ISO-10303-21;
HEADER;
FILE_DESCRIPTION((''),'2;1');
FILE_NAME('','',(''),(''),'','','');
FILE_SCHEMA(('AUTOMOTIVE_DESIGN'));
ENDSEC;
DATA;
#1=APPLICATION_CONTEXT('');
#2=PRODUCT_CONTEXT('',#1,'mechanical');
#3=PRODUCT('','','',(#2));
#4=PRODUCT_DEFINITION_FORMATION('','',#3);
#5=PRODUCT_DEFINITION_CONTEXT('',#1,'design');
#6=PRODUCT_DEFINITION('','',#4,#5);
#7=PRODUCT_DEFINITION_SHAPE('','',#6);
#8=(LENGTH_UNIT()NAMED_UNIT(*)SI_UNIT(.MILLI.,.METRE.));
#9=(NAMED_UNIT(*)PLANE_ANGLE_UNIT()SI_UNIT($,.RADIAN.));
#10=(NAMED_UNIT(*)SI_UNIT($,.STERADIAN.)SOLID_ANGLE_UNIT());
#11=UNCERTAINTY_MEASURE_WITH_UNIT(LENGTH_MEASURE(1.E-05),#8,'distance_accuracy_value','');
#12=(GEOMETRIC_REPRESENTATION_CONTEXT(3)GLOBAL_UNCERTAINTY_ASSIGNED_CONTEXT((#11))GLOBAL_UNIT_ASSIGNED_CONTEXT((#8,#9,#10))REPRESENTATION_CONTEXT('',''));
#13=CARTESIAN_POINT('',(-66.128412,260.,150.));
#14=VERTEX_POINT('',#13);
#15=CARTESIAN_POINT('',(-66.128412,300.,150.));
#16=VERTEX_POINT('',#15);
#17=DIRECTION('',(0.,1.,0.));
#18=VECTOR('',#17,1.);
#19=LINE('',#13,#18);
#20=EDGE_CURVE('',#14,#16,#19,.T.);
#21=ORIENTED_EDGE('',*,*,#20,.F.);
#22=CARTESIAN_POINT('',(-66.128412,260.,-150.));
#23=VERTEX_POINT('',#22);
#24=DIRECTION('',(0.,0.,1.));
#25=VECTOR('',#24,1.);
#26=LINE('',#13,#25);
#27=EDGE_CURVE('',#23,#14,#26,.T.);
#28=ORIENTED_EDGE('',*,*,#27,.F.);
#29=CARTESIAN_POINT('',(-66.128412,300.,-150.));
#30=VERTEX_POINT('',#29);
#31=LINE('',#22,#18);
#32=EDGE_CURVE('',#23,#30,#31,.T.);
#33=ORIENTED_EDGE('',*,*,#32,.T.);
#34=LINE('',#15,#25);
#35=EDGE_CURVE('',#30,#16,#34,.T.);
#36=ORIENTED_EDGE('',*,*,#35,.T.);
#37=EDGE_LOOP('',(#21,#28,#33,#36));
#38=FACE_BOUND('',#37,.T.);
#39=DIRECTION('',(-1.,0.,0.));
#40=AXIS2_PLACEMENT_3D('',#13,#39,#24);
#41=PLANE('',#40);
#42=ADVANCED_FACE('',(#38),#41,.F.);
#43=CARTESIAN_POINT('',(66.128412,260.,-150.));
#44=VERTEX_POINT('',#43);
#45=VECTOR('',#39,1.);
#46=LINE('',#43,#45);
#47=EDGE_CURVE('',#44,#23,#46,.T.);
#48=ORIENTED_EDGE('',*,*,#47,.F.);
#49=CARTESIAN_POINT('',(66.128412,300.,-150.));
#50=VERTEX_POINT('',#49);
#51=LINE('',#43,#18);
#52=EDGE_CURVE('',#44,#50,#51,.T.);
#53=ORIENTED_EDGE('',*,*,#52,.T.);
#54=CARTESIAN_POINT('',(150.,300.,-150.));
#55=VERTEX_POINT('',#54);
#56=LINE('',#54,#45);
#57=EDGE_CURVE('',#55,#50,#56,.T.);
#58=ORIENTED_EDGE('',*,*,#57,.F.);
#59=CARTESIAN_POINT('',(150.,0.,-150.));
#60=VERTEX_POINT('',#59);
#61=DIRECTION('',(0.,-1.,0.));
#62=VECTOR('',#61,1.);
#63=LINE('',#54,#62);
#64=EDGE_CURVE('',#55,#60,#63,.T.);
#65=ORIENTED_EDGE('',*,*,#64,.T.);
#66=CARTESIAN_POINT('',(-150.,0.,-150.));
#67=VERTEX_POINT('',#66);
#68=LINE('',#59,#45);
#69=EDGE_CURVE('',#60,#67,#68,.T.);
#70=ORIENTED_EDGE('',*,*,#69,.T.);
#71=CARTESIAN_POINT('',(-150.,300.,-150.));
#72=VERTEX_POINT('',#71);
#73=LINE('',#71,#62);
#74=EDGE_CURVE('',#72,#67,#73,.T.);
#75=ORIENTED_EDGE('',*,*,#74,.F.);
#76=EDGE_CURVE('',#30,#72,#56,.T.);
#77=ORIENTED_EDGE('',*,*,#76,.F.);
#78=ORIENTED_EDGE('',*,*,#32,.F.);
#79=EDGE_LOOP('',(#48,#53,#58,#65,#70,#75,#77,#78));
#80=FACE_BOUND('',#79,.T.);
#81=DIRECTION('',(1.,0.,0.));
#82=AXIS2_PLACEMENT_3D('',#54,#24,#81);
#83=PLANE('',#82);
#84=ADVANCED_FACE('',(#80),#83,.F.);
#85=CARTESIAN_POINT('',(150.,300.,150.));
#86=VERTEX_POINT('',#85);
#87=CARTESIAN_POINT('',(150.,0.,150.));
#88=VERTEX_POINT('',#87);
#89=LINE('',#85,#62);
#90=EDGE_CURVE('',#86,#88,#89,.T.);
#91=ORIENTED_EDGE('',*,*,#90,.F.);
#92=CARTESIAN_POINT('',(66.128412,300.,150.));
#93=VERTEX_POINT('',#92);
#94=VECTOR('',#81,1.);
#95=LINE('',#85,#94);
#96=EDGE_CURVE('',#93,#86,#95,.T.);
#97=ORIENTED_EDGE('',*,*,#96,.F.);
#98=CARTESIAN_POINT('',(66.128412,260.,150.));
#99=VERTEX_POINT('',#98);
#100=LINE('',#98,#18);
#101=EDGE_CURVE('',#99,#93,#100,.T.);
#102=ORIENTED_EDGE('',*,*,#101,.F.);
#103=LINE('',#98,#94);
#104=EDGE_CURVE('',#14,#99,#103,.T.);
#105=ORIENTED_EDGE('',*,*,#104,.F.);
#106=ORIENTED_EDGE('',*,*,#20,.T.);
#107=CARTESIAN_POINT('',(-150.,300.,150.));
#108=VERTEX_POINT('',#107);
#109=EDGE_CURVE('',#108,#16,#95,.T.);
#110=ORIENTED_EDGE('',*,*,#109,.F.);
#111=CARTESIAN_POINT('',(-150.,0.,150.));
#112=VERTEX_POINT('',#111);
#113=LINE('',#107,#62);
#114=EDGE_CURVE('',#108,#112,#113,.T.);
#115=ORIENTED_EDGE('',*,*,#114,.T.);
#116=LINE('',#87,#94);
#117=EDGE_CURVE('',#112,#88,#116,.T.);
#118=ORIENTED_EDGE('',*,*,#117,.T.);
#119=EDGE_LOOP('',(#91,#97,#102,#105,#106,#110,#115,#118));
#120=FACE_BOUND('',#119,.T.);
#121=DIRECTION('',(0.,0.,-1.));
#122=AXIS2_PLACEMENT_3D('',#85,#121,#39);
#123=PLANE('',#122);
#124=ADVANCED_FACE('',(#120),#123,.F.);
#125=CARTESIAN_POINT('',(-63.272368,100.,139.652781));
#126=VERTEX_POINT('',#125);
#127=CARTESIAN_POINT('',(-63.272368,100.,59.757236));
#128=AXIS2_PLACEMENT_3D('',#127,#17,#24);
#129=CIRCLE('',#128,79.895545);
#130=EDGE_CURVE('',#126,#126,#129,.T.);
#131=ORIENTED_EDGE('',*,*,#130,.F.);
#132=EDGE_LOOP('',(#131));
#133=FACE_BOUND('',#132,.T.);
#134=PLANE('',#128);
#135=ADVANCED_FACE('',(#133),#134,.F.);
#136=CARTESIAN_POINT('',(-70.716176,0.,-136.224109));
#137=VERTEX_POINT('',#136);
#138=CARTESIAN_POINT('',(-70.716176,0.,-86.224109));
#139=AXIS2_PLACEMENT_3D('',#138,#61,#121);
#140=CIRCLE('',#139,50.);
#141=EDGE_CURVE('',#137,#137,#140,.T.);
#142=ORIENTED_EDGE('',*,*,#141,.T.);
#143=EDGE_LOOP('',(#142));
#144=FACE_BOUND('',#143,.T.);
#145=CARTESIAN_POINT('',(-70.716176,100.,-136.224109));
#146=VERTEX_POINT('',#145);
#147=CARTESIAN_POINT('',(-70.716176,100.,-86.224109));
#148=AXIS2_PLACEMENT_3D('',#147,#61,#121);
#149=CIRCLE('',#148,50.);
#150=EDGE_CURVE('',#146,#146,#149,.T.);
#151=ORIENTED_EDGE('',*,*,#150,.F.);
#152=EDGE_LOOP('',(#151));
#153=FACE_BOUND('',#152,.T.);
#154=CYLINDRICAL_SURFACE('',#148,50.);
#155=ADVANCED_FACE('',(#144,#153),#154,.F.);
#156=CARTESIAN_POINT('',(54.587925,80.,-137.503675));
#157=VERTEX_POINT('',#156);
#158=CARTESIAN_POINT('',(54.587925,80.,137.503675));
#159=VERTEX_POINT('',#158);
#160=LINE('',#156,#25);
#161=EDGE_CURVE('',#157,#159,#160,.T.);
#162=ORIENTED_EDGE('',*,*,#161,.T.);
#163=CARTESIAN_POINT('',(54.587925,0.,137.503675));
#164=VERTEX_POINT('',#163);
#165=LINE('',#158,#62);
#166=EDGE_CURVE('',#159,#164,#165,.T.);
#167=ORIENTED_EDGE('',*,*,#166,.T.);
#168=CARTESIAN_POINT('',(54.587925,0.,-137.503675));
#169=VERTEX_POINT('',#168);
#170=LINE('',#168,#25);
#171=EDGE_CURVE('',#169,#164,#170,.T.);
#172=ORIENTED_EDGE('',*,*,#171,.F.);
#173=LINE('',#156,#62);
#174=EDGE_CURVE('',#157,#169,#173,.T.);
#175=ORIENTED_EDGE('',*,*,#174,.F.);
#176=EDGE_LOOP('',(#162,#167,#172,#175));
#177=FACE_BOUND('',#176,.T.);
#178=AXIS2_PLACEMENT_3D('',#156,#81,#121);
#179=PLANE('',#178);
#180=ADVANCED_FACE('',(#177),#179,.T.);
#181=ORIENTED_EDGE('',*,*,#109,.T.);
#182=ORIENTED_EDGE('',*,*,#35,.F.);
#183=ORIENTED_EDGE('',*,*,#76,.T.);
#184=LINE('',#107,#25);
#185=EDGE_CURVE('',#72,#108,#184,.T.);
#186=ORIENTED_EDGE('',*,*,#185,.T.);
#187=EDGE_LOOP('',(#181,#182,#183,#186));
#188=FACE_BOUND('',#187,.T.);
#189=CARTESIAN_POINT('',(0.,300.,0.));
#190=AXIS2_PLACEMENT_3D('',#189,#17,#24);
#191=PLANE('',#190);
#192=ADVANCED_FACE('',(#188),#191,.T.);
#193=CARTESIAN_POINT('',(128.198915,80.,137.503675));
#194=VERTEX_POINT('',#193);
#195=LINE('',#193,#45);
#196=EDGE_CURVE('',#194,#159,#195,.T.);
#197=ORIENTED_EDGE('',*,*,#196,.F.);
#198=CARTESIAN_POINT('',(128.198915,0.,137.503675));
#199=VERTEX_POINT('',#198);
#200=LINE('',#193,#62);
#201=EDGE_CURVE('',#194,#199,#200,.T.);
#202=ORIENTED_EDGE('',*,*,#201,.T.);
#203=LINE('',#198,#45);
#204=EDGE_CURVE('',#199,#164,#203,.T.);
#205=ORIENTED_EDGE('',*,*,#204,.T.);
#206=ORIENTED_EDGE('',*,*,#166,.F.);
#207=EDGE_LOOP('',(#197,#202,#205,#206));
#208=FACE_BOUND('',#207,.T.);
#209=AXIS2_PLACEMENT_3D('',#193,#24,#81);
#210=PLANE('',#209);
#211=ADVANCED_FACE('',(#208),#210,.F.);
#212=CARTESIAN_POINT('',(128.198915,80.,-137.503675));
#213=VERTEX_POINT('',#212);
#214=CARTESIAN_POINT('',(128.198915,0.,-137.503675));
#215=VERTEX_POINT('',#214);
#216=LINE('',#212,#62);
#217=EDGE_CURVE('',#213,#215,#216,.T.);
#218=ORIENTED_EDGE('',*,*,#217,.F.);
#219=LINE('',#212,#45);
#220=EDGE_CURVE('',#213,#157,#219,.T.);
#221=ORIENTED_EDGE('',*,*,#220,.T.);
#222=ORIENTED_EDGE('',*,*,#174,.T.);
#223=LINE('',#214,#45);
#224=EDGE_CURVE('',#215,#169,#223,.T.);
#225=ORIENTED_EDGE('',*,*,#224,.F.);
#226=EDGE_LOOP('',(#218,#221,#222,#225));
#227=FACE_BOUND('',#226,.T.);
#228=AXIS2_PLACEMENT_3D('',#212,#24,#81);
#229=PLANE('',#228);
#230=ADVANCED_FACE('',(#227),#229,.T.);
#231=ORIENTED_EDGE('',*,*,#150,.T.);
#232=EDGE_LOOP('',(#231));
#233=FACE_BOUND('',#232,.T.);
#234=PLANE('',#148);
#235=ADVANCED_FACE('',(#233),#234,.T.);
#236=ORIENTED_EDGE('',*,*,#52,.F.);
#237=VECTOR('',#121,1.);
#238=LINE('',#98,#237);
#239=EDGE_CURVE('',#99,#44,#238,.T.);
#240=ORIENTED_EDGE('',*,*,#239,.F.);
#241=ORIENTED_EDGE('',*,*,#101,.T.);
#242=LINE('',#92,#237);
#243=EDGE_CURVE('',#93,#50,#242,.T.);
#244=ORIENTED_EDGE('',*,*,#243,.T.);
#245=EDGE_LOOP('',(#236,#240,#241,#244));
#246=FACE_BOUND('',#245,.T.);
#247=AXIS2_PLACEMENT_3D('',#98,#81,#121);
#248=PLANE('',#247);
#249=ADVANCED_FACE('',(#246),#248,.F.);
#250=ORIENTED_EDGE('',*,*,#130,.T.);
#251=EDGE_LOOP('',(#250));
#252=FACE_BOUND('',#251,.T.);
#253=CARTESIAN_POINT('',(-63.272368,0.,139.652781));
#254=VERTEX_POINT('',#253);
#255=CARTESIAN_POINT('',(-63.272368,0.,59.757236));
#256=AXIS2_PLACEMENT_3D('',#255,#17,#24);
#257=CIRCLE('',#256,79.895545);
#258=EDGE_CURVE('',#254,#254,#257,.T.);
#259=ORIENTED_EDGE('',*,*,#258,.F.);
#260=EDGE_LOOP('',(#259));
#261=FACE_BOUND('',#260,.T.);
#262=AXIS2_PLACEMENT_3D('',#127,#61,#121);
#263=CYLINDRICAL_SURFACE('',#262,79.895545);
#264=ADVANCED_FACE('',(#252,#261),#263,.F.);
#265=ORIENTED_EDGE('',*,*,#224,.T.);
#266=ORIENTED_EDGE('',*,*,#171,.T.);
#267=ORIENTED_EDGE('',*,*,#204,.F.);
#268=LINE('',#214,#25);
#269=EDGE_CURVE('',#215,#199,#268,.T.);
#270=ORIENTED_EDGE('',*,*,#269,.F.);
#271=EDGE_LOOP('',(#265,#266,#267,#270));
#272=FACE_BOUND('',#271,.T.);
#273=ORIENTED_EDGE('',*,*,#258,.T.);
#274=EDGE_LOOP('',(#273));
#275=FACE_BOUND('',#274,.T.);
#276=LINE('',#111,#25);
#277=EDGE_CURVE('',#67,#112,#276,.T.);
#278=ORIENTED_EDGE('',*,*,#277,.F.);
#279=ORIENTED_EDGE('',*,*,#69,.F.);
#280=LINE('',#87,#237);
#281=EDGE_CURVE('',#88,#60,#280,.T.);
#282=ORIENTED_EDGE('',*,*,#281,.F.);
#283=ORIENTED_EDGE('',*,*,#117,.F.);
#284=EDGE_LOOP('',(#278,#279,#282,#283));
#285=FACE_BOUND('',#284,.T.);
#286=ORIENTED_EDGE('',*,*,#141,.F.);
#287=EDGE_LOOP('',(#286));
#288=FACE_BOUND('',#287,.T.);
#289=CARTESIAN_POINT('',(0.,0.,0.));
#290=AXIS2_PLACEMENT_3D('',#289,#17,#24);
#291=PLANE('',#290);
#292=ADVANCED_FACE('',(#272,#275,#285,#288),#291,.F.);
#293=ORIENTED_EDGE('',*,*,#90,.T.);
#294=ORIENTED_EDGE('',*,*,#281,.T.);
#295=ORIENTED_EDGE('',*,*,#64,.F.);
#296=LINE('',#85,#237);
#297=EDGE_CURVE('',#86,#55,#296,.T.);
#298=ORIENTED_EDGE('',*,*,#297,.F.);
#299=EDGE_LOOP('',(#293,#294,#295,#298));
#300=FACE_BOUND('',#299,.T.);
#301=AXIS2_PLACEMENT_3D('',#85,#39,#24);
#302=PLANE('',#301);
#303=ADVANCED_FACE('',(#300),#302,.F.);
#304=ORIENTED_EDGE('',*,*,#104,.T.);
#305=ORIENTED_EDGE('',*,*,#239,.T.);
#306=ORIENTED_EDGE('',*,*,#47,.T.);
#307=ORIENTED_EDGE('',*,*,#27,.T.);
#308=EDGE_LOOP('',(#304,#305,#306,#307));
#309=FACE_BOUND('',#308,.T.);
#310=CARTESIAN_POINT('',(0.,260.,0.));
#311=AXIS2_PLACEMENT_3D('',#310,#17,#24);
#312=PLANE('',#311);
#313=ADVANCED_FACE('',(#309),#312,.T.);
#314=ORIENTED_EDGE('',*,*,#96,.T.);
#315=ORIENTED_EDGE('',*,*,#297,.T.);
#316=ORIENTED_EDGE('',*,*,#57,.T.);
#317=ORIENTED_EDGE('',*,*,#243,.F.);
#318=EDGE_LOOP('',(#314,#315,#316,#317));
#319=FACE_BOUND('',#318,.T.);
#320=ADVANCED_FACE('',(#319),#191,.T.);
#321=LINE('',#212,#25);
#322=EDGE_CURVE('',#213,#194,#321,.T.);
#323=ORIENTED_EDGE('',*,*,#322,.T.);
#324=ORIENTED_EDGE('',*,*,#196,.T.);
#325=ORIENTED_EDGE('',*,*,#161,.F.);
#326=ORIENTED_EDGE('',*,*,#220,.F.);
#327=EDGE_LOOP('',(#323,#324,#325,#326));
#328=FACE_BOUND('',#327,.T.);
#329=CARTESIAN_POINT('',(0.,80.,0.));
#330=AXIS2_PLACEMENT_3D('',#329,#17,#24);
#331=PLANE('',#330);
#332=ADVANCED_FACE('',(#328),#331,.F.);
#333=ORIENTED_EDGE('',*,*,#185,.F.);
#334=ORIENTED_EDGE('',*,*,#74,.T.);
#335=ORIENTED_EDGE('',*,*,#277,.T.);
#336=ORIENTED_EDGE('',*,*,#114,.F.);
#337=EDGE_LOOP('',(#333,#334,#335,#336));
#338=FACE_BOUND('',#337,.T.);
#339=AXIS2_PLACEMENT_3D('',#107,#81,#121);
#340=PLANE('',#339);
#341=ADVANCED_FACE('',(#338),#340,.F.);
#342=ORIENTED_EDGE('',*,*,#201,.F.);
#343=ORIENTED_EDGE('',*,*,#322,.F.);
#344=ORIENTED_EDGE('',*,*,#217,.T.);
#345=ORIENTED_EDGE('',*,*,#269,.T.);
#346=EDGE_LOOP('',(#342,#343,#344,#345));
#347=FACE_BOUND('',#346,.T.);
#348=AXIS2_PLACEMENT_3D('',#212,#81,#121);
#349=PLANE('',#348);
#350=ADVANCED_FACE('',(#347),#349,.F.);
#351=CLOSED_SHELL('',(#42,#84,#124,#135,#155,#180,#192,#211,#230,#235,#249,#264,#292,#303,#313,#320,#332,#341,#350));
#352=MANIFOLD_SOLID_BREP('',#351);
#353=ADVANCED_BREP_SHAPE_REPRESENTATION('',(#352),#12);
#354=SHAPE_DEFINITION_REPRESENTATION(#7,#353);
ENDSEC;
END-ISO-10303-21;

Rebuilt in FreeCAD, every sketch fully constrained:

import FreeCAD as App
import Part
import Sketcher

V = App.Vector
Q = App.Units.Quantity

doc = App.newDocument("Part")
body = doc.addObject("PartDesign::Body", "Body")

sketch1 = body.newObject("Sketcher::SketchObject", "Sketch")
sketch1.AttachmentSupport = (doc.getObject("XZ_Plane"), [""])
sketch1.MapMode = "FlatFace"
sketch1.addGeometry(Part.LineSegment(V(-150, -150, 0), V(-150, 150, 0)), False)
sketch1.addGeometry(Part.LineSegment(V(-150, 150, 0), V(150, 150, 0)), False)
sketch1.addGeometry(Part.LineSegment(V(150, 150, 0), V(150, -150, 0)), False)
sketch1.addGeometry(Part.LineSegment(V(150, -150, 0), V(-150, -150, 0)), False)
sketch1.addConstraint(Sketcher.Constraint("Coincident", 0, 2, 1, 1))
sketch1.addConstraint(Sketcher.Constraint("Coincident", 1, 2, 2, 1))
sketch1.addConstraint(Sketcher.Constraint("Coincident", 2, 2, 3, 1))
sketch1.addConstraint(Sketcher.Constraint("Coincident", 3, 2, 0, 1))
sketch1.addConstraint(Sketcher.Constraint("Vertical", 0))
sketch1.addConstraint(Sketcher.Constraint("Horizontal", 1))
sketch1.addConstraint(Sketcher.Constraint("Vertical", 2))
sketch1.addConstraint(Sketcher.Constraint("Horizontal", 3))
sketch1.addConstraint(Sketcher.Constraint("Symmetric", 0, 2, 2, 2, -1, 1))
sketch1.addConstraint(Sketcher.Constraint("Equal", 3, 0))
sketch1.addConstraint(Sketcher.Constraint("DistanceX", 1, 1, 1, 2, Q("300 mm")))
pad1 = body.newObject("PartDesign::Pad", "Pad")
pad1.Profile = sketch1
pad1.Length = 300
pad1.Reversed = True

sketch2 = body.newObject("Sketcher::SketchObject", "Sketch001")
sketch2.AttachmentSupport = (doc.getObject("XZ_Plane"), [""])
sketch2.MapMode = "FlatFace"
sketch2.addGeometry(Part.Circle(V(-63.272368, 59.757236, 0), V(0, 0, 1), 79.895545), False)
sketch2.addConstraint(Sketcher.Constraint("Diameter", 0, Q("159.79109 mm")))
sketch2.addConstraint(Sketcher.Constraint("DistanceX", 0, 3, -1, 1, Q("63.272368 mm")))
sketch2.addConstraint(Sketcher.Constraint("DistanceY", -1, 1, 0, 3, Q("59.757236 mm")))
pocket1 = body.newObject("PartDesign::Pocket", "Pocket")
pocket1.Profile = sketch2
pocket1.Length = 100

sketch3 = body.newObject("Sketcher::SketchObject", "Sketch002")
sketch3.AttachmentSupport = (doc.getObject("XZ_Plane"), [""])
sketch3.MapMode = "FlatFace"
sketch3.addGeometry(Part.Circle(V(-70.716176, -86.224109, 0), V(0, 0, 1), 50), False)
sketch3.addConstraint(Sketcher.Constraint("Diameter", 0, Q("100 mm")))
sketch3.addConstraint(Sketcher.Constraint("DistanceY", 0, 3, -1, 1, Q("86.224109 mm")))
sketch3.addConstraint(Sketcher.Constraint("DistanceX", 0, 3, -1, 1, Q("70.716176 mm")))
pocket2 = body.newObject("PartDesign::Pocket", "Pocket001")
pocket2.Profile = sketch3
pocket2.Length = 100

sketch4 = body.newObject("Sketcher::SketchObject", "Sketch003")
sketch4.AttachmentSupport = (doc.getObject("XZ_Plane"), [""])
sketch4.MapMode = "FlatFace"
sketch4.addGeometry(Part.LineSegment(V(54.587925, 137.503675, 0), V(54.587925, -137.503675, 0)), False)
sketch4.addGeometry(Part.LineSegment(V(54.587925, -137.503675, 0), V(128.198915, -137.503675, 0)), False)
sketch4.addGeometry(Part.LineSegment(V(128.198915, -137.503675, 0), V(128.198915, 137.503675, 0)), False)
sketch4.addGeometry(Part.LineSegment(V(128.198915, 137.503675, 0), V(54.587925, 137.503675, 0)), False)
sketch4.addConstraint(Sketcher.Constraint("Coincident", 0, 2, 1, 1))
sketch4.addConstraint(Sketcher.Constraint("Coincident", 1, 2, 2, 1))
sketch4.addConstraint(Sketcher.Constraint("Coincident", 2, 2, 3, 1))
sketch4.addConstraint(Sketcher.Constraint("Coincident", 3, 2, 0, 1))
sketch4.addConstraint(Sketcher.Constraint("Vertical", 0))
sketch4.addConstraint(Sketcher.Constraint("Horizontal", 1))
sketch4.addConstraint(Sketcher.Constraint("Vertical", 2))
sketch4.addConstraint(Sketcher.Constraint("Horizontal", 3))
sketch4.addConstraint(Sketcher.Constraint("DistanceX", 1, 1, 1, 2, Q("73.61099 mm")))
sketch4.addConstraint(Sketcher.Constraint("DistanceY", 0, 2, 0, 1, Q("275.00735 mm")))
sketch4.addConstraint(Sketcher.Constraint("DistanceX", -1, 1, 0, 2, Q("54.587925 mm")))
sketch4.addConstraint(Sketcher.Constraint("DistanceY", 0, 2, -1, 1, Q("137.503675 mm")))
pocket3 = body.newObject("PartDesign::Pocket", "Pocket002")
pocket3.Profile = sketch4
pocket3.Length = 80

sketch5 = body.newObject("Sketcher::SketchObject", "Sketch004")
sketch5.AttachmentSupport = (doc.getObject("XZ_Plane"), [""])
sketch5.MapMode = "FlatFace"
sketch5.AttachmentOffset = App.Placement(V(0, 0, -300), App.Rotation())
sketch5.addGeometry(Part.LineSegment(V(-66.128412, -150, 0), V(-66.128412, 150, 0)), False)
sketch5.addGeometry(Part.LineSegment(V(-66.128412, 150, 0), V(66.128412, 150, 0)), False)
sketch5.addGeometry(Part.LineSegment(V(66.128412, 150, 0), V(66.128412, -150, 0)), False)
sketch5.addGeometry(Part.LineSegment(V(66.128412, -150, 0), V(-66.128412, -150, 0)), False)
sketch5.addConstraint(Sketcher.Constraint("Coincident", 0, 2, 1, 1))
sketch5.addConstraint(Sketcher.Constraint("Coincident", 1, 2, 2, 1))
sketch5.addConstraint(Sketcher.Constraint("Coincident", 2, 2, 3, 1))
sketch5.addConstraint(Sketcher.Constraint("Coincident", 3, 2, 0, 1))
sketch5.addConstraint(Sketcher.Constraint("Vertical", 0))
sketch5.addConstraint(Sketcher.Constraint("Horizontal", 1))
sketch5.addConstraint(Sketcher.Constraint("Vertical", 2))
sketch5.addConstraint(Sketcher.Constraint("Horizontal", 3))
sketch5.addConstraint(Sketcher.Constraint("Symmetric", 0, 2, 2, 2, -1, 1))
sketch5.addConstraint(Sketcher.Constraint("DistanceY", 0, 1, 0, 2, Q("300 mm")))
sketch5.addConstraint(Sketcher.Constraint("DistanceX", 1, 1, 1, 2, Q("132.256824 mm")))
pocket4 = body.newObject("PartDesign::Pocket", "Pocket003")
pocket4.Profile = sketch5
pocket4.Length = 40
pocket4.Reversed = True

doc.recompute()
